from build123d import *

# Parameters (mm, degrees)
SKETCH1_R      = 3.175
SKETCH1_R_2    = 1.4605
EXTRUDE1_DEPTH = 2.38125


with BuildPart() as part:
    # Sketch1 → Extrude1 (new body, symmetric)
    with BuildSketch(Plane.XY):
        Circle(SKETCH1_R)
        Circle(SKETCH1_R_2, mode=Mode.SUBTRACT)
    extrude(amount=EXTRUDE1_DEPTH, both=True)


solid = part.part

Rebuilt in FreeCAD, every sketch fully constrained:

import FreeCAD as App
import Part
import Sketcher
from FreeCAD import Vector
Q = App.Units.Quantity

doc = App.newDocument("Part")
params = doc.addObject("Spreadsheet::Sheet", "Params")
for row, (alias, value) in enumerate([
    ("sketch1_diameter", "0.25 in"),
    ("sketch1_diameter2", "0.115 in"),
    ("pad1_length", "0.1875 in"),
], start=1):
    params.set(f"A{row}", alias)
    params.set(f"B{row}", "=" + value)
    params.setAlias(f"B{row}", alias)

body = doc.addObject("PartDesign::Body", "Body")

# Sketch on XY plane
sketch1 = body.newObject("Sketcher::SketchObject", "Sketch")
sketch1.AttachmentSupport = (doc.getObject("XY_Plane"), [""])
sketch1.MapMode = "FlatFace"
sketch1.addGeometry(Part.Circle(Vector(0, 0, 0), Vector(0, 0, 1), 3.2), False)
sketch1.addGeometry(Part.Circle(Vector(0, 0, 0), Vector(0, 0, 1), 1.5), False)
sketch1.addConstraint(Sketcher.Constraint("Coincident", 0, 3, -1, 1))
sketch1.addConstraint(Sketcher.Constraint("Coincident", 1, 3, -1, 1))
sketch1.addConstraint(Sketcher.Constraint("Diameter", 0, Q("0.25 in")))
sketch1.addConstraint(Sketcher.Constraint("Diameter", 1, Q("0.115 in")))
sketch1.setExpression("Constraints[2]", "Params.sketch1_diameter")
sketch1.setExpression("Constraints[3]", "Params.sketch1_diameter2")
pad1 = body.newObject("PartDesign::Pad", "Pad")
pad1.Profile = sketch1
pad1.setExpression("Length", "Params.pad1_length")
pad1.Midplane = True

doc.recompute()
